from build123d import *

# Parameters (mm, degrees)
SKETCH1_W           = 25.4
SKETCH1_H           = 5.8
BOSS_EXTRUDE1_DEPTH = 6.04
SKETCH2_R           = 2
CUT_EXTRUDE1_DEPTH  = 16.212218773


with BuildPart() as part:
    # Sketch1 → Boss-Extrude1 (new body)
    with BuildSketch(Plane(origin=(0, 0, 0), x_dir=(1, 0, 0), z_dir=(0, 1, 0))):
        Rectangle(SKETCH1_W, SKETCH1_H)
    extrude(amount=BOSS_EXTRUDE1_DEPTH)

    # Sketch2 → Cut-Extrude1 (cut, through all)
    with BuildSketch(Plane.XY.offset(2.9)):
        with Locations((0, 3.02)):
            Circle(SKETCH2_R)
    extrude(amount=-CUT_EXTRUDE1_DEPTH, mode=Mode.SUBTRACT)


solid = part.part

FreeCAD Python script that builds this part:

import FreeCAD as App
import Part
import Sketcher

V = App.Vector


def add_polygon(sketch, points):
    """Adds a closed chain of lines whose ends are joined by coincident constraints."""
    first, n = sketch.GeometryCount, len(points)
    for a, b in zip(points, points[1:] + points[:1]):
        sketch.addGeometry(Part.LineSegment(App.Vector(*a, 0), App.Vector(*b, 0)), False)
    for i in range(n):
        sketch.addConstraint(Sketcher.Constraint("Coincident", first + i, 2, first + (i + 1) % n, 1))

doc = App.newDocument("Part")
params = doc.addObject("Spreadsheet::Sheet", "Params")
for row, (alias, value) in enumerate([
    ("sketch1_width", "25.4 mm"),
    ("sketch1_height", "5.8 mm"),
    ("pad1_length", "6.04 mm"),
    ("sketch2_diameter", "4 mm"),
], start=1):
    params.set(f"A{row}", alias)
    params.set(f"B{row}", "=" + value)
    params.setAlias(f"B{row}", alias)

body = doc.addObject("PartDesign::Body", "Body")

# Sketch on XZ plane
sketch1 = doc.addObject("Sketcher::SketchObject", "Sketch")
body.addObject(sketch1)
sketch1.AttachmentSupport = (doc.XZ_Plane, [""])
sketch1.MapMode = "FlatFace"
add_polygon(sketch1, [(-12.7, -2.9), (-12.7, 2.9), (12.7, 2.9), (12.7, -2.9)])  # lines 0-3
sketch1.addConstraint(Sketcher.Constraint("Vertical", 0))
sketch1.addConstraint(Sketcher.Constraint("Horizontal", 1))
sketch1.addConstraint(Sketcher.Constraint("Vertical", 2))
sketch1.addConstraint(Sketcher.Constraint("Horizontal", 3))
sketch1.addConstraint(Sketcher.Constraint("Symmetric", 0, 2, 2, 2, -1, 1))
sketch1.addConstraint(Sketcher.Constraint("DistanceX", 1, 1, 1, 2, 25.4))
sketch1.addConstraint(Sketcher.Constraint("DistanceY", 0, 1, 0, 2, 5.8))
sketch1.setExpression("Constraints[9]", "Params.sketch1_width")
sketch1.setExpression("Constraints[10]", "Params.sketch1_height")
pad1 = doc.addObject("PartDesign::Pad", "Pad")
body.addObject(pad1)
pad1.Profile = sketch1
pad1.setExpression("Length", "Params.pad1_length")
pad1.Reversed = True

# Sketch on XY plane
sketch2 = doc.addObject("Sketcher::SketchObject", "Sketch001")
body.addObject(sketch2)
sketch2.AttachmentSupport = (doc.XY_Plane, [""])
sketch2.MapMode = "FlatFace"
sketch2.AttachmentOffset = App.Placement(V(0, 0, 2.9), App.Rotation())
sketch2.addGeometry(Part.Circle(V(0, 3.02, 0), V(0, 0, 1), 2), False)
sketch2.addConstraint(Sketcher.Constraint("PointOnObject", 0, 3, -2))
sketch2.addConstraint(Sketcher.Constraint("Diameter", 0, 4.0))
sketch2.addConstraint(Sketcher.Constraint("DistanceY", -1, 1, 0, 3, 3.02))
sketch2.setExpression("Constraints[1]", "Params.sketch2_diameter")
pocket1 = doc.addObject("PartDesign::Pocket", "Pocket")
body.addObject(pocket1)
pocket1.Profile = sketch2
pocket1.Type = "ThroughAll"

doc.recompute()
